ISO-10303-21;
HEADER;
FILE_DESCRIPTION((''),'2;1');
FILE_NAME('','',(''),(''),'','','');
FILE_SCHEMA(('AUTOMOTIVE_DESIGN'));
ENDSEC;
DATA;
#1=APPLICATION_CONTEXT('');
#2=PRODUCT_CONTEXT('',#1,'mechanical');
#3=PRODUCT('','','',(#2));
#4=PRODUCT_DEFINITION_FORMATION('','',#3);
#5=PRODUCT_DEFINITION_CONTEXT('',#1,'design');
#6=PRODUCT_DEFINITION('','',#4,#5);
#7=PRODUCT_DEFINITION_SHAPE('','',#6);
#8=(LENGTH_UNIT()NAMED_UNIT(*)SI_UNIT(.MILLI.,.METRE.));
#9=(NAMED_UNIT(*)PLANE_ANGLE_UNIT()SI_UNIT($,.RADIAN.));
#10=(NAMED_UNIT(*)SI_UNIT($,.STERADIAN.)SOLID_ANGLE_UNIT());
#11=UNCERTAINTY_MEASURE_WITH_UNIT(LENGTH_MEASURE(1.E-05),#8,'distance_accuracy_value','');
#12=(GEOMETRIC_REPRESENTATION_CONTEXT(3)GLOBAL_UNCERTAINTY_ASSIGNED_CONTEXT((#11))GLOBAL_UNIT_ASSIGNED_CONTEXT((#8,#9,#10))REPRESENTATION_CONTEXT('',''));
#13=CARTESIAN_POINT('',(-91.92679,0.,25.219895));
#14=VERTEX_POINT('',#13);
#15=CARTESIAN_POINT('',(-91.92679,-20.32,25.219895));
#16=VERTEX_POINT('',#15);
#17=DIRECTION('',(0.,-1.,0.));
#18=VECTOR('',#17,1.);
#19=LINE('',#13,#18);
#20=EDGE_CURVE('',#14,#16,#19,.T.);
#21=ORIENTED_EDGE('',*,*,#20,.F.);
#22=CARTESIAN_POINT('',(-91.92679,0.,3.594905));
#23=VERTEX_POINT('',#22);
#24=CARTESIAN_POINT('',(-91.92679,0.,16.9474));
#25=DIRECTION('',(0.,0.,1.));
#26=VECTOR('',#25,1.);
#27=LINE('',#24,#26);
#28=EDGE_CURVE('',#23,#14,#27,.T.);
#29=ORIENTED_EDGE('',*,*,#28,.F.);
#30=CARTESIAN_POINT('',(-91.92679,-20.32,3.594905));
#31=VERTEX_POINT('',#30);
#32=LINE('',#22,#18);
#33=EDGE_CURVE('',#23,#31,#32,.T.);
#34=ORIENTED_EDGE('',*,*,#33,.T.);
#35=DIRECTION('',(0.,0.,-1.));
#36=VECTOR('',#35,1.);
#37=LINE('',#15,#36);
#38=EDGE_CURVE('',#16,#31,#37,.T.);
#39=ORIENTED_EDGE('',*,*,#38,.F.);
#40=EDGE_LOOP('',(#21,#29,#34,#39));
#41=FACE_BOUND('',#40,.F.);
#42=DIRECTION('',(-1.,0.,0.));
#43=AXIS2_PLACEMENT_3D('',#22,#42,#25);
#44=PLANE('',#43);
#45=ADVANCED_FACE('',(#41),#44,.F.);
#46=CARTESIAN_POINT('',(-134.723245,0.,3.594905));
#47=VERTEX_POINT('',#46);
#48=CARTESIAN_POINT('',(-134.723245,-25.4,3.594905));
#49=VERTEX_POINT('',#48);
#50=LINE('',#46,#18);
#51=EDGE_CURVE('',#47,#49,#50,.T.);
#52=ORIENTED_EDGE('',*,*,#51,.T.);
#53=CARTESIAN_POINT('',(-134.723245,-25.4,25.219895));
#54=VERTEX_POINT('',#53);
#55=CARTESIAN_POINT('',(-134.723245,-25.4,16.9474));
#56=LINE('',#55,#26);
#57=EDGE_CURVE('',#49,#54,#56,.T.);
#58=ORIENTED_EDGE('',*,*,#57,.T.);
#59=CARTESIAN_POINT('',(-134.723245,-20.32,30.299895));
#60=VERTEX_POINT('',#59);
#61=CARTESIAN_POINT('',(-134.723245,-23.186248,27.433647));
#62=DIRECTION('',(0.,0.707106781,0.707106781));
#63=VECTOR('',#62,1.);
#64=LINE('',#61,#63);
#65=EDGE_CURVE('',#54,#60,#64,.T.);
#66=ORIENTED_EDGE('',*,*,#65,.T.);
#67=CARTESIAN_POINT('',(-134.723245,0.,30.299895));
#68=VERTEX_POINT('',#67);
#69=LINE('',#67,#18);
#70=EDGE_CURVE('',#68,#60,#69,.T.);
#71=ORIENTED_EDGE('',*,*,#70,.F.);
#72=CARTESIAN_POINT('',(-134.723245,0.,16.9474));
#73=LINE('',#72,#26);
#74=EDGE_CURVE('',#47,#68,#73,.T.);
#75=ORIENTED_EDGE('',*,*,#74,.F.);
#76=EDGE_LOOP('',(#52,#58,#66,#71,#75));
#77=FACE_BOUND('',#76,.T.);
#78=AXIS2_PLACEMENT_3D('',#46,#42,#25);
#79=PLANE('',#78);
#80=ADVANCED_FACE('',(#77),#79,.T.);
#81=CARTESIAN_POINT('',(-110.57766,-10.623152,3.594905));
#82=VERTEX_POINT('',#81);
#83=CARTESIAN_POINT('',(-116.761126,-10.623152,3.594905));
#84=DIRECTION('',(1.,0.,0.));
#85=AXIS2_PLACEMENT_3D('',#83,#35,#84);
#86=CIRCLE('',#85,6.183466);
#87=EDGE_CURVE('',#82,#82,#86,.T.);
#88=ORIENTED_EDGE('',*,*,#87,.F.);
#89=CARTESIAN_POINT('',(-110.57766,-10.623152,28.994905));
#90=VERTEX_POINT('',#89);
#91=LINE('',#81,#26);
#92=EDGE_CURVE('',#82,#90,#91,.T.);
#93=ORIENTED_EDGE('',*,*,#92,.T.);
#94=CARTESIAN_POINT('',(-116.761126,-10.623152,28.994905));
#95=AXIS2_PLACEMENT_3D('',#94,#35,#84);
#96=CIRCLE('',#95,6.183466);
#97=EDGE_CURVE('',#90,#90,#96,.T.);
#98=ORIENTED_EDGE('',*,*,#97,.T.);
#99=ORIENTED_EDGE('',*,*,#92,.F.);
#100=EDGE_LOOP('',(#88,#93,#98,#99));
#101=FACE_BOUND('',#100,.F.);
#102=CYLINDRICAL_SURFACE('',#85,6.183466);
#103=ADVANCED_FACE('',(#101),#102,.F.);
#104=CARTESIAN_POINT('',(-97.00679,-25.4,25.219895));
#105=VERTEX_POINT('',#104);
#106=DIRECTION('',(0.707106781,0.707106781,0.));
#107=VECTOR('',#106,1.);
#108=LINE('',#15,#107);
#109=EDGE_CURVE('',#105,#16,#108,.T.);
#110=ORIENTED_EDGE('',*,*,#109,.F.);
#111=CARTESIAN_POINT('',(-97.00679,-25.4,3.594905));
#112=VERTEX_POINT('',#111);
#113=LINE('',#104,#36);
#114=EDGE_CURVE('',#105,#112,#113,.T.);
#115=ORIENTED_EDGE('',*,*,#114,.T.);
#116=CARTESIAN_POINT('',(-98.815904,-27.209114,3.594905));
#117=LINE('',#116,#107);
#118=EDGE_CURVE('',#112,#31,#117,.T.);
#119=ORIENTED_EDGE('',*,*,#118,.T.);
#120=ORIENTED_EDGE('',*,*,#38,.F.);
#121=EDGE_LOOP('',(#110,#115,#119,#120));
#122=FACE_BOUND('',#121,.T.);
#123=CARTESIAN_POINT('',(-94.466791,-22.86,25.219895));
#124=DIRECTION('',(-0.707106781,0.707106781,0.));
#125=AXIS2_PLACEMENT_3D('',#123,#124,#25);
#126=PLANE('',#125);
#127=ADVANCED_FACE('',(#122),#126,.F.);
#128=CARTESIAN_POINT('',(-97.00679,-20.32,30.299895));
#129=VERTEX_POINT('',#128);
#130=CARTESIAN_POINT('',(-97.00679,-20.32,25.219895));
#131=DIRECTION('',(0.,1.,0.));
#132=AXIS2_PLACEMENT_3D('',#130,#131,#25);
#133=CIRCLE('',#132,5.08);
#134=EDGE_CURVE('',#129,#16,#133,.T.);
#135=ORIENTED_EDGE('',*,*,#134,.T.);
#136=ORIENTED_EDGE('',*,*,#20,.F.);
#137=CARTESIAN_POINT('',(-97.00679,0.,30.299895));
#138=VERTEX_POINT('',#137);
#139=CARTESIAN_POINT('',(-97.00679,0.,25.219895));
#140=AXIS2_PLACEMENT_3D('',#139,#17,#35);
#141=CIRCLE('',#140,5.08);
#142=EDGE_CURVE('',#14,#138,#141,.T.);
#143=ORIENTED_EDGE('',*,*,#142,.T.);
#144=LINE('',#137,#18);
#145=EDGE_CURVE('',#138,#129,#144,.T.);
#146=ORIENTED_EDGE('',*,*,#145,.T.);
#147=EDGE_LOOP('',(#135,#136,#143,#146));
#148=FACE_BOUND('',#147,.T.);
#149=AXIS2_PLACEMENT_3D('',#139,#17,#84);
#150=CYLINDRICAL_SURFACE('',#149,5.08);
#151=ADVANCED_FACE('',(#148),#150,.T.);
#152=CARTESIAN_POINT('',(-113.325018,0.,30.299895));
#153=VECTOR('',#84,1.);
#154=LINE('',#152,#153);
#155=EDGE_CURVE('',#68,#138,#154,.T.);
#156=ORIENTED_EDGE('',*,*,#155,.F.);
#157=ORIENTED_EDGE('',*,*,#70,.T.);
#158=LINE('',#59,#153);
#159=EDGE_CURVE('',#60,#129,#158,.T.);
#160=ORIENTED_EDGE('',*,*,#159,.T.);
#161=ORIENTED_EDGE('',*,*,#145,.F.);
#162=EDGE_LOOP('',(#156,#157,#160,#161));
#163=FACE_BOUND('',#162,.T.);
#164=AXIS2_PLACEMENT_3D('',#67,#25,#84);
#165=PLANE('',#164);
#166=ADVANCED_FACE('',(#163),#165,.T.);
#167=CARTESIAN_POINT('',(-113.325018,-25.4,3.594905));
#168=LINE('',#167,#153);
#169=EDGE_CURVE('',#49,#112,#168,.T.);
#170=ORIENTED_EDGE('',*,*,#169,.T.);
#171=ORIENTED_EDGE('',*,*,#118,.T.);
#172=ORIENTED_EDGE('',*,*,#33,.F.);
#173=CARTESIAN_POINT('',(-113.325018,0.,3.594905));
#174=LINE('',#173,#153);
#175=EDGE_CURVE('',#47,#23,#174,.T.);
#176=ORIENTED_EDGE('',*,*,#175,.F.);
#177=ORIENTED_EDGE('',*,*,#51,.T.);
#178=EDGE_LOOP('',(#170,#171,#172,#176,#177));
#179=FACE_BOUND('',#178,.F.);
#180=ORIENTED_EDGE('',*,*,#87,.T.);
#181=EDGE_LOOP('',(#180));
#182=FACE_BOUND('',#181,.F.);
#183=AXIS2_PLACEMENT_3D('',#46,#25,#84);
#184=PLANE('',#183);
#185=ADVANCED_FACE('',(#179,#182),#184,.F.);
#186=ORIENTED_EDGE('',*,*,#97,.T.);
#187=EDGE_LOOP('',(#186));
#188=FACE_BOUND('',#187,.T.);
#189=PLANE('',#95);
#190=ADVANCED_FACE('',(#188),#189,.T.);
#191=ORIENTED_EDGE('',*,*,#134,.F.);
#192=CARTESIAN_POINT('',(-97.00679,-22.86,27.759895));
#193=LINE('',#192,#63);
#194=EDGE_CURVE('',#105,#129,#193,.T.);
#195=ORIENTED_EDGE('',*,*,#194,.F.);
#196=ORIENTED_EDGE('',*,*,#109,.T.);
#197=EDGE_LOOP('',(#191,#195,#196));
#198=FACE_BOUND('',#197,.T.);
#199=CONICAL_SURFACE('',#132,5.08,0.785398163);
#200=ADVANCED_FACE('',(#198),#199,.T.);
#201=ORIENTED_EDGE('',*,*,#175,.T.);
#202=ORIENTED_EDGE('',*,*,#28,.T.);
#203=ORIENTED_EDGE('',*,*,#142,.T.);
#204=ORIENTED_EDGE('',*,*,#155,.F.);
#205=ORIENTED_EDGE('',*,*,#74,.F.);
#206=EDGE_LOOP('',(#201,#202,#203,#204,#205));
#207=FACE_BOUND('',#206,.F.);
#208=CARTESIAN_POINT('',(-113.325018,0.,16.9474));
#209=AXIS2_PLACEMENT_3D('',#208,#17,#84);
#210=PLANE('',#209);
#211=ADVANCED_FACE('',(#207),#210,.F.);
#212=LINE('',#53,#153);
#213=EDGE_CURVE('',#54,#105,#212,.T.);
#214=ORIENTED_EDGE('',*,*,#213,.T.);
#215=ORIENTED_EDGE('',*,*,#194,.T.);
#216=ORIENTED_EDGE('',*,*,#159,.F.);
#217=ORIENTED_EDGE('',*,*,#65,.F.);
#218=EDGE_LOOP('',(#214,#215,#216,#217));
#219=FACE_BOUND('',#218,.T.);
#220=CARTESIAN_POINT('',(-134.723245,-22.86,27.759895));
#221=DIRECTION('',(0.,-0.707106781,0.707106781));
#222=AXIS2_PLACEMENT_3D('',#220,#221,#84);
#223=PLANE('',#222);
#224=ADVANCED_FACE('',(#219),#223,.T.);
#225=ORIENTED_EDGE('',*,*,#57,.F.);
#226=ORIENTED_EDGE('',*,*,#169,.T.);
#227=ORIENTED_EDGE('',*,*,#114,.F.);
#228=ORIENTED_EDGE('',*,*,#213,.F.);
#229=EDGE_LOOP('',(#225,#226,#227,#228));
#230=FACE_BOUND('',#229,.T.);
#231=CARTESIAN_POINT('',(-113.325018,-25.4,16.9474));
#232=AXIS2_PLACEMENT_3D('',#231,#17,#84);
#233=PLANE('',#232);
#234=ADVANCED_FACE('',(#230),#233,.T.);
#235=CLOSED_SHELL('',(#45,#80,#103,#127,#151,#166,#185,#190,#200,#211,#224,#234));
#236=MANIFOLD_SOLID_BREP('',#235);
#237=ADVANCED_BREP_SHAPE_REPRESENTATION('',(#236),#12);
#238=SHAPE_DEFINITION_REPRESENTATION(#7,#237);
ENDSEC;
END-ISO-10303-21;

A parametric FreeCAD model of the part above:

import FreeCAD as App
import Part
import Sketcher
from FreeCAD import Vector
Q = App.Units.Quantity


def edges_at(feature, points):
    """Names of the edges that pass closest to the given points."""
    edges = feature.Shape.Edges
    near = lambda p: min(range(len(edges)), key=lambda i: edges[i].distToShape(Part.Vertex(*p))[0])
    return sorted({f"Edge{near(p) + 1}" for p in points})

doc = App.newDocument("Part")
params = doc.addObject("Spreadsheet::Sheet", "Params")
for row, (alias, value) in enumerate([
    ("pad1_length", "1 in"),
    ("fillet_radius", "0.2 in"),
    ("chamfer_size", "0.2 in"),
    ("pocket1_length", "1 in"),
], start=1):
    params.set(f"A{row}", alias)
    params.set(f"B{row}", "=" + value)
    params.setAlias(f"B{row}", alias)

body = doc.addObject("PartDesign::Body", "Body")

sketch1 = body.newObject("Sketcher::SketchObject", "Sketch")
sketch1.AttachmentSupport = (doc.getObject("XZ_Plane"), [""])
sketch1.MapMode = "FlatFace"
sketch1.addGeometry([
    Part.LineSegment(Vector(-134.723245, 30.299895, 0), Vector(-134.723245, 3.594905, 0)),
    Part.LineSegment(Vector(-134.723245, 3.594905, 0), Vector(-91.92679, 3.594905, 0)),
    Part.LineSegment(Vector(-91.92679, 3.594905, 0), Vector(-91.92679, 30.299895, 0)),
    Part.LineSegment(Vector(-91.92679, 30.299895, 0), Vector(-134.723245, 30.299895, 0)),
], False)
sketch1.addConstraint([
    Sketcher.Constraint("Coincident", 0, 2, 1, 1),
    Sketcher.Constraint("Coincident", 1, 2, 2, 1),
    Sketcher.Constraint("Coincident", 2, 2, 3, 1),
    Sketcher.Constraint("Coincident", 3, 2, 0, 1),
    Sketcher.Constraint("Vertical", 0),
    Sketcher.Constraint("Horizontal", 1),
    Sketcher.Constraint("Vertical", 2),
    Sketcher.Constraint("Horizontal", 3),
    Sketcher.Constraint("DistanceX", 1, 1, 1, 2, Q("1.6848998 in")),
    Sketcher.Constraint("DistanceY", 0, 2, 0, 1, Q("26.70499 mm")),
    Sketcher.Constraint("DistanceX", 1, 2, -1, 1, Q("91.92679 mm")),
    Sketcher.Constraint("DistanceY", -1, 1, 0, 2, Q("3.594905 mm")),
])
pad1 = body.newObject("PartDesign::Pad", "Pad")
pad1.Profile = sketch1
pad1.setExpression("Length", "Params.pad1_length")
doc.recompute()

fillet = body.newObject("PartDesign::Fillet", "Fillet")
fillet.Base = (pad1, edges_at(pad1, [(-91.927, -12.7, 30.3)]))
fillet.setExpression("Radius", "Params.fillet_radius")
doc.recompute()

chamfer = body.newObject("PartDesign::Chamfer", "Chamfer")
chamfer.Base = (fillet, edges_at(fillet, [(-115.865, -25.4, 30.3)]))
chamfer.setExpression("Size", "Params.chamfer_size")

sketch2 = body.newObject("Sketcher::SketchObject", "Sketch001")
sketch2.AttachmentSupport = (doc.getObject("XY_Plane"), [""])
sketch2.MapMode = "FlatFace"
sketch2.AttachmentOffset = App.Placement(Vector(0, 0, 3.594905), App.Rotation())
sketch2.addGeometry(Part.Circle(Vector(-116.761126, -10.623152, 0), Vector(0, 0, 1), 6.183466), False)
sketch2.addConstraint([
    Sketcher.Constraint("Diameter", 0, Q("12.366932 mm")),
    Sketcher.Constraint("DistanceY", 0, 3, -1, 1, Q("10.623152 mm")),
    Sketcher.Constraint("DistanceX", 0, 3, -1, 1, Q("116.761126 mm")),
])
pocket1 = body.newObject("PartDesign::Pocket", "Pocket")
pocket1.Profile = sketch2
pocket1.setExpression("Length", "Params.pocket1_length")
pocket1.Reversed = True

doc.recompute()
